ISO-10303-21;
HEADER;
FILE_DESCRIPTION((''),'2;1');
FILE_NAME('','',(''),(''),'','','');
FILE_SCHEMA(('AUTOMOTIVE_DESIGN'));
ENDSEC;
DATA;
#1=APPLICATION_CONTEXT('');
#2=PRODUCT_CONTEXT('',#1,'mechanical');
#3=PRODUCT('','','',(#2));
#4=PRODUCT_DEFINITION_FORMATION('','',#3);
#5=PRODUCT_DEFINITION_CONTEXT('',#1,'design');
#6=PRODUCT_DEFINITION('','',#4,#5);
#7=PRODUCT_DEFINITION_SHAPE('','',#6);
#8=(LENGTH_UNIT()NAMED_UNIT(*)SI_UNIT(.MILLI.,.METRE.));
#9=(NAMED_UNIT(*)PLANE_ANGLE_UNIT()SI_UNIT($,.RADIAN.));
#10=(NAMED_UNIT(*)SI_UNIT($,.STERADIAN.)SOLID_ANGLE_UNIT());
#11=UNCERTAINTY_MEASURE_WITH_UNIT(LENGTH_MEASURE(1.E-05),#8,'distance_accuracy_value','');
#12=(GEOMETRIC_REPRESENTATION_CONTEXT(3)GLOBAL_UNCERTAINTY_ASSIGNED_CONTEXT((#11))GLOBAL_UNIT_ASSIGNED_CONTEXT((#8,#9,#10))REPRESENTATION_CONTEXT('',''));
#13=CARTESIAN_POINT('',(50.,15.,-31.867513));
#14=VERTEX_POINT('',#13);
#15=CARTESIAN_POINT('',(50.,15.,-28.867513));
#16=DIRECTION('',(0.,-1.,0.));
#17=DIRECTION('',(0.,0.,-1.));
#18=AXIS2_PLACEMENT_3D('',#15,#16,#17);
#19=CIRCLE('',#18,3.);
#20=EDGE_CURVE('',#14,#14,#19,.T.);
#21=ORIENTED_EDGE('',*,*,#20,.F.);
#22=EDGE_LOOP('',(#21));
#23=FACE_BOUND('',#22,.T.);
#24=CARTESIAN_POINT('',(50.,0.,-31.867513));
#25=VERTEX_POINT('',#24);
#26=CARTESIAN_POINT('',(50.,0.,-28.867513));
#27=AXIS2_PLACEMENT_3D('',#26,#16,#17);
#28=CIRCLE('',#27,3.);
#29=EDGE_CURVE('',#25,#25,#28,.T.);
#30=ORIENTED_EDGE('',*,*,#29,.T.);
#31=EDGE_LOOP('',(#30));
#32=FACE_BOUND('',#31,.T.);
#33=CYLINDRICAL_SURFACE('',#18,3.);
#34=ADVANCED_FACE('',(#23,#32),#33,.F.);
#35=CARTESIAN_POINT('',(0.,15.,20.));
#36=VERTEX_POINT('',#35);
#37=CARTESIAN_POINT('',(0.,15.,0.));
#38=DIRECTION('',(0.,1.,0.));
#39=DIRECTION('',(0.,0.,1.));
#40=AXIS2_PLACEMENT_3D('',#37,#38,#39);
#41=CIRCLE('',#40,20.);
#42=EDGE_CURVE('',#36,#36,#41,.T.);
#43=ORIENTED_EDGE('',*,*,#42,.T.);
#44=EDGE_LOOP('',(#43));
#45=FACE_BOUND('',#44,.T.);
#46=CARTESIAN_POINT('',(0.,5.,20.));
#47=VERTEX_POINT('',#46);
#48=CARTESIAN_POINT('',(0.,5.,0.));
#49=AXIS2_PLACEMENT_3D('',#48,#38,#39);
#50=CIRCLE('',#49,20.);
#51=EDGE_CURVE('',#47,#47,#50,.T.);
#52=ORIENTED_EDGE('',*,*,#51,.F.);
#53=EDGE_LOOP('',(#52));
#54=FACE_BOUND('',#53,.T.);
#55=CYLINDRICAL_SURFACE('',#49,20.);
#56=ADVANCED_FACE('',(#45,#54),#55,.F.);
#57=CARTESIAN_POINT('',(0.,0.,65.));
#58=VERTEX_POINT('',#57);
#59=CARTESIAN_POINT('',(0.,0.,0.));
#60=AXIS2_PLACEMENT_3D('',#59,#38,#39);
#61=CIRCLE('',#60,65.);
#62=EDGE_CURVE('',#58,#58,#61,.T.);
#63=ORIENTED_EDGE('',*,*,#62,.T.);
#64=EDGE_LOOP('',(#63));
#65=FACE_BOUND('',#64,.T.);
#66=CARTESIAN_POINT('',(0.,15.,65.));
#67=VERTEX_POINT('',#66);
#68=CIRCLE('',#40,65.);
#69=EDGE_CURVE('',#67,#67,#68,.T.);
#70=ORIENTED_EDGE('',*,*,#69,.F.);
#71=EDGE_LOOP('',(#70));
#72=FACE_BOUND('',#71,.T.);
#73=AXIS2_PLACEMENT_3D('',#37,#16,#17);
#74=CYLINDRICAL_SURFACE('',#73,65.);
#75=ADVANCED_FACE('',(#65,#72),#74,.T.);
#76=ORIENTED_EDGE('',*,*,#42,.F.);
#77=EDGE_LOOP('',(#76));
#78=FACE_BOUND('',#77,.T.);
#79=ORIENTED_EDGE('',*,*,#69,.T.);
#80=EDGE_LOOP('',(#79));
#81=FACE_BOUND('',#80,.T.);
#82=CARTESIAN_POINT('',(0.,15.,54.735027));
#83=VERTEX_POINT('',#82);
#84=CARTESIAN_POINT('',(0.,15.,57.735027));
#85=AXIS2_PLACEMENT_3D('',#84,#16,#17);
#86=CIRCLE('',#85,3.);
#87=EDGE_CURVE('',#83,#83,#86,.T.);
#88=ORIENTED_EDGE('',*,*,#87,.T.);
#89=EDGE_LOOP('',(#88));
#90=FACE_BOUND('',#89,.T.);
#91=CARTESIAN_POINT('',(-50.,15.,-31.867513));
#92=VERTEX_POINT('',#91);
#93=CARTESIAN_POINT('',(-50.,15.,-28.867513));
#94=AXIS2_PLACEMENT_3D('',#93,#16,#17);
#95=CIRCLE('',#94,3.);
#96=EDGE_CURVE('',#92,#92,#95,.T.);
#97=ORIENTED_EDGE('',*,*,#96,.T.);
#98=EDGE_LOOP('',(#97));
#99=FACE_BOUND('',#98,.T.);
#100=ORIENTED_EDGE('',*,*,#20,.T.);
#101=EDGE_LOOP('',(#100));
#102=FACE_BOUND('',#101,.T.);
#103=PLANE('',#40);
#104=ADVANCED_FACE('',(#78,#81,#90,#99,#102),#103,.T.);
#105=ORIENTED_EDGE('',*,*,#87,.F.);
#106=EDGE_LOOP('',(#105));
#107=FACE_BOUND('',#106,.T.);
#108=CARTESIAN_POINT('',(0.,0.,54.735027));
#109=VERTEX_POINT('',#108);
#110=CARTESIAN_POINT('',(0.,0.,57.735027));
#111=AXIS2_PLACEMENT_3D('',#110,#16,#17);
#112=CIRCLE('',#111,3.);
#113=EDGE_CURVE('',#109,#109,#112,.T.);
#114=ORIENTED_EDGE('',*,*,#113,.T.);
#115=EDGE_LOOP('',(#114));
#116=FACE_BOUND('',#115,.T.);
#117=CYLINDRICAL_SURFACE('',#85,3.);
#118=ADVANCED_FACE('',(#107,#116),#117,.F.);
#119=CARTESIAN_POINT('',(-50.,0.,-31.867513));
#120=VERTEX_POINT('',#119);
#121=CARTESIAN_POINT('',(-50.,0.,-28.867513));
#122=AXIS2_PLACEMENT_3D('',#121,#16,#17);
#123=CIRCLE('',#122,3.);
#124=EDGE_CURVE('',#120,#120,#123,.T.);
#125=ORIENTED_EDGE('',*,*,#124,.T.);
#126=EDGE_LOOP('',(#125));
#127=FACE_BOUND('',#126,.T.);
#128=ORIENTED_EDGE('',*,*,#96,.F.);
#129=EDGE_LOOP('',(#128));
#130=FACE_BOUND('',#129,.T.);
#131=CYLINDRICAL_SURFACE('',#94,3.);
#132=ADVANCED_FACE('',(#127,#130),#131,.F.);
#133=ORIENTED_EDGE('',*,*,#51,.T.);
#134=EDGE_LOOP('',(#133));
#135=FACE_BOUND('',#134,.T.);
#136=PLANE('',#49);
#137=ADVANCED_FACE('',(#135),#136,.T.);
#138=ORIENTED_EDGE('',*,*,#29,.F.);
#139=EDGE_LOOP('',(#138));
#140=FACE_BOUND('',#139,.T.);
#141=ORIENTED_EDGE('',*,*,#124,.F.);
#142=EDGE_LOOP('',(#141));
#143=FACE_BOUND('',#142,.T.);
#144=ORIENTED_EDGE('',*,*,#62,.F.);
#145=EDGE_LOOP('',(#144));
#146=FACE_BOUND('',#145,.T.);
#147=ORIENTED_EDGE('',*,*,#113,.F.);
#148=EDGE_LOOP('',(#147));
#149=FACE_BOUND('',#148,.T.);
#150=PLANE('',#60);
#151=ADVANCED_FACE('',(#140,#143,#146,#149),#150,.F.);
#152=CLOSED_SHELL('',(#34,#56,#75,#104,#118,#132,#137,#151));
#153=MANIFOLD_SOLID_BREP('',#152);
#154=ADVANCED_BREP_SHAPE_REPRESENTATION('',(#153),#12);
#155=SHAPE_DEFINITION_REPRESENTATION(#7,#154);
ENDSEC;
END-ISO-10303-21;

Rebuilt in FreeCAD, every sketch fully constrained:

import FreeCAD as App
import Part
import Sketcher
from FreeCAD import Vector

doc = App.newDocument("Part")
params = doc.addObject("Spreadsheet::Sheet", "Params")
for row, (alias, value) in enumerate([
    ("sketch1_diameter", "130 mm"),
    ("pad1_length", "15 mm"),
    ("sketch2_diameter", "40 mm"),
    ("pocket1_length", "10 mm"),
    ("sketch3_diameter", "6 mm"),
    ("pocket2_length", "15 mm"),
], start=1):
    params.set(f"A{row}", alias)
    params.set(f"B{row}", "=" + value)
    params.setAlias(f"B{row}", alias)

body = doc.addObject("PartDesign::Body", "Body")

# Sketch on XZ plane
sketch1 = body.newObject("Sketcher::SketchObject", "Sketch")
sketch1.AttachmentSupport = (doc.getObject("XZ_Plane"), [""])
sketch1.MapMode = "FlatFace"
sketch1.addGeometry(Part.Circle(Vector(0, 0, 0), Vector(0, 0, 1), 65), False)
sketch1.addConstraint([
    Sketcher.Constraint("Coincident", 0, 3, -1, 1),
    Sketcher.Constraint("Diameter", 0, 130.0),
])
sketch1.setExpression("Constraints[1]", "Params.sketch1_diameter")
pad1 = body.newObject("PartDesign::Pad", "Pad")
pad1.Profile = sketch1
pad1.setExpression("Length", "Params.pad1_length")
pad1.Reversed = True

# Sketch on XZ plane
sketch2 = body.newObject("Sketcher::SketchObject", "Sketch001")
sketch2.AttachmentSupport = (doc.getObject("XZ_Plane"), [""])
sketch2.MapMode = "FlatFace"
sketch2.AttachmentOffset = App.Placement(Vector(0, 0, -15), App.Rotation())
sketch2.addGeometry(Part.Circle(Vector(0, 0, 0), Vector(0, 0, 1), 20), False)
sketch2.addConstraint([
    Sketcher.Constraint("Coincident", 0, 3, -1, 1),
    Sketcher.Constraint("Diameter", 0, 40.0),
])
sketch2.setExpression("Constraints[1]", "Params.sketch2_diameter")
pocket1 = body.newObject("PartDesign::Pocket", "Pocket")
pocket1.Profile = sketch2
pocket1.setExpression("Length", "Params.pocket1_length")
pocket1.Reversed = True

# Sketch on XZ plane
sketch3 = body.newObject("Sketcher::SketchObject", "Sketch002")
sketch3.AttachmentSupport = (doc.getObject("XZ_Plane"), [""])
sketch3.MapMode = "FlatFace"
sketch3.addGeometry([
    Part.Circle(Vector(0, 57.7, 0), Vector(0, 0, 1), 3),
    Part.Circle(Vector(-50, -28.9, 0), Vector(0, 0, 1), 3),
    Part.Circle(Vector(50, -28.9, 0), Vector(0, 0, 1), 3),
], False)
sketch3.addConstraint([
    Sketcher.Constraint("Equal", 0, 1),
    Sketcher.Constraint("Equal", 1, 2),
    Sketcher.Constraint("Symmetric", 1, 3, 2, 3, -2),
    Sketcher.Constraint("PointOnObject", 0, 3, -2),
    Sketcher.Constraint("Diameter", 0, 6.0),
    Sketcher.Constraint("DistanceX", 1, 3, -1, 1, 50.0),
    Sketcher.Constraint("DistanceY", 1, 3, 0, 3, 86.60254),
    Sketcher.Constraint("DistanceY", -1, 1, 0, 3, 57.735027),
])
sketch3.setExpression("Constraints[4]", "Params.sketch3_diameter")
pocket2 = body.newObject("PartDesign::Pocket", "Pocket001")
pocket2.Profile = sketch3
pocket2.setExpression("Length", "Params.pocket2_length")

doc.recompute()
